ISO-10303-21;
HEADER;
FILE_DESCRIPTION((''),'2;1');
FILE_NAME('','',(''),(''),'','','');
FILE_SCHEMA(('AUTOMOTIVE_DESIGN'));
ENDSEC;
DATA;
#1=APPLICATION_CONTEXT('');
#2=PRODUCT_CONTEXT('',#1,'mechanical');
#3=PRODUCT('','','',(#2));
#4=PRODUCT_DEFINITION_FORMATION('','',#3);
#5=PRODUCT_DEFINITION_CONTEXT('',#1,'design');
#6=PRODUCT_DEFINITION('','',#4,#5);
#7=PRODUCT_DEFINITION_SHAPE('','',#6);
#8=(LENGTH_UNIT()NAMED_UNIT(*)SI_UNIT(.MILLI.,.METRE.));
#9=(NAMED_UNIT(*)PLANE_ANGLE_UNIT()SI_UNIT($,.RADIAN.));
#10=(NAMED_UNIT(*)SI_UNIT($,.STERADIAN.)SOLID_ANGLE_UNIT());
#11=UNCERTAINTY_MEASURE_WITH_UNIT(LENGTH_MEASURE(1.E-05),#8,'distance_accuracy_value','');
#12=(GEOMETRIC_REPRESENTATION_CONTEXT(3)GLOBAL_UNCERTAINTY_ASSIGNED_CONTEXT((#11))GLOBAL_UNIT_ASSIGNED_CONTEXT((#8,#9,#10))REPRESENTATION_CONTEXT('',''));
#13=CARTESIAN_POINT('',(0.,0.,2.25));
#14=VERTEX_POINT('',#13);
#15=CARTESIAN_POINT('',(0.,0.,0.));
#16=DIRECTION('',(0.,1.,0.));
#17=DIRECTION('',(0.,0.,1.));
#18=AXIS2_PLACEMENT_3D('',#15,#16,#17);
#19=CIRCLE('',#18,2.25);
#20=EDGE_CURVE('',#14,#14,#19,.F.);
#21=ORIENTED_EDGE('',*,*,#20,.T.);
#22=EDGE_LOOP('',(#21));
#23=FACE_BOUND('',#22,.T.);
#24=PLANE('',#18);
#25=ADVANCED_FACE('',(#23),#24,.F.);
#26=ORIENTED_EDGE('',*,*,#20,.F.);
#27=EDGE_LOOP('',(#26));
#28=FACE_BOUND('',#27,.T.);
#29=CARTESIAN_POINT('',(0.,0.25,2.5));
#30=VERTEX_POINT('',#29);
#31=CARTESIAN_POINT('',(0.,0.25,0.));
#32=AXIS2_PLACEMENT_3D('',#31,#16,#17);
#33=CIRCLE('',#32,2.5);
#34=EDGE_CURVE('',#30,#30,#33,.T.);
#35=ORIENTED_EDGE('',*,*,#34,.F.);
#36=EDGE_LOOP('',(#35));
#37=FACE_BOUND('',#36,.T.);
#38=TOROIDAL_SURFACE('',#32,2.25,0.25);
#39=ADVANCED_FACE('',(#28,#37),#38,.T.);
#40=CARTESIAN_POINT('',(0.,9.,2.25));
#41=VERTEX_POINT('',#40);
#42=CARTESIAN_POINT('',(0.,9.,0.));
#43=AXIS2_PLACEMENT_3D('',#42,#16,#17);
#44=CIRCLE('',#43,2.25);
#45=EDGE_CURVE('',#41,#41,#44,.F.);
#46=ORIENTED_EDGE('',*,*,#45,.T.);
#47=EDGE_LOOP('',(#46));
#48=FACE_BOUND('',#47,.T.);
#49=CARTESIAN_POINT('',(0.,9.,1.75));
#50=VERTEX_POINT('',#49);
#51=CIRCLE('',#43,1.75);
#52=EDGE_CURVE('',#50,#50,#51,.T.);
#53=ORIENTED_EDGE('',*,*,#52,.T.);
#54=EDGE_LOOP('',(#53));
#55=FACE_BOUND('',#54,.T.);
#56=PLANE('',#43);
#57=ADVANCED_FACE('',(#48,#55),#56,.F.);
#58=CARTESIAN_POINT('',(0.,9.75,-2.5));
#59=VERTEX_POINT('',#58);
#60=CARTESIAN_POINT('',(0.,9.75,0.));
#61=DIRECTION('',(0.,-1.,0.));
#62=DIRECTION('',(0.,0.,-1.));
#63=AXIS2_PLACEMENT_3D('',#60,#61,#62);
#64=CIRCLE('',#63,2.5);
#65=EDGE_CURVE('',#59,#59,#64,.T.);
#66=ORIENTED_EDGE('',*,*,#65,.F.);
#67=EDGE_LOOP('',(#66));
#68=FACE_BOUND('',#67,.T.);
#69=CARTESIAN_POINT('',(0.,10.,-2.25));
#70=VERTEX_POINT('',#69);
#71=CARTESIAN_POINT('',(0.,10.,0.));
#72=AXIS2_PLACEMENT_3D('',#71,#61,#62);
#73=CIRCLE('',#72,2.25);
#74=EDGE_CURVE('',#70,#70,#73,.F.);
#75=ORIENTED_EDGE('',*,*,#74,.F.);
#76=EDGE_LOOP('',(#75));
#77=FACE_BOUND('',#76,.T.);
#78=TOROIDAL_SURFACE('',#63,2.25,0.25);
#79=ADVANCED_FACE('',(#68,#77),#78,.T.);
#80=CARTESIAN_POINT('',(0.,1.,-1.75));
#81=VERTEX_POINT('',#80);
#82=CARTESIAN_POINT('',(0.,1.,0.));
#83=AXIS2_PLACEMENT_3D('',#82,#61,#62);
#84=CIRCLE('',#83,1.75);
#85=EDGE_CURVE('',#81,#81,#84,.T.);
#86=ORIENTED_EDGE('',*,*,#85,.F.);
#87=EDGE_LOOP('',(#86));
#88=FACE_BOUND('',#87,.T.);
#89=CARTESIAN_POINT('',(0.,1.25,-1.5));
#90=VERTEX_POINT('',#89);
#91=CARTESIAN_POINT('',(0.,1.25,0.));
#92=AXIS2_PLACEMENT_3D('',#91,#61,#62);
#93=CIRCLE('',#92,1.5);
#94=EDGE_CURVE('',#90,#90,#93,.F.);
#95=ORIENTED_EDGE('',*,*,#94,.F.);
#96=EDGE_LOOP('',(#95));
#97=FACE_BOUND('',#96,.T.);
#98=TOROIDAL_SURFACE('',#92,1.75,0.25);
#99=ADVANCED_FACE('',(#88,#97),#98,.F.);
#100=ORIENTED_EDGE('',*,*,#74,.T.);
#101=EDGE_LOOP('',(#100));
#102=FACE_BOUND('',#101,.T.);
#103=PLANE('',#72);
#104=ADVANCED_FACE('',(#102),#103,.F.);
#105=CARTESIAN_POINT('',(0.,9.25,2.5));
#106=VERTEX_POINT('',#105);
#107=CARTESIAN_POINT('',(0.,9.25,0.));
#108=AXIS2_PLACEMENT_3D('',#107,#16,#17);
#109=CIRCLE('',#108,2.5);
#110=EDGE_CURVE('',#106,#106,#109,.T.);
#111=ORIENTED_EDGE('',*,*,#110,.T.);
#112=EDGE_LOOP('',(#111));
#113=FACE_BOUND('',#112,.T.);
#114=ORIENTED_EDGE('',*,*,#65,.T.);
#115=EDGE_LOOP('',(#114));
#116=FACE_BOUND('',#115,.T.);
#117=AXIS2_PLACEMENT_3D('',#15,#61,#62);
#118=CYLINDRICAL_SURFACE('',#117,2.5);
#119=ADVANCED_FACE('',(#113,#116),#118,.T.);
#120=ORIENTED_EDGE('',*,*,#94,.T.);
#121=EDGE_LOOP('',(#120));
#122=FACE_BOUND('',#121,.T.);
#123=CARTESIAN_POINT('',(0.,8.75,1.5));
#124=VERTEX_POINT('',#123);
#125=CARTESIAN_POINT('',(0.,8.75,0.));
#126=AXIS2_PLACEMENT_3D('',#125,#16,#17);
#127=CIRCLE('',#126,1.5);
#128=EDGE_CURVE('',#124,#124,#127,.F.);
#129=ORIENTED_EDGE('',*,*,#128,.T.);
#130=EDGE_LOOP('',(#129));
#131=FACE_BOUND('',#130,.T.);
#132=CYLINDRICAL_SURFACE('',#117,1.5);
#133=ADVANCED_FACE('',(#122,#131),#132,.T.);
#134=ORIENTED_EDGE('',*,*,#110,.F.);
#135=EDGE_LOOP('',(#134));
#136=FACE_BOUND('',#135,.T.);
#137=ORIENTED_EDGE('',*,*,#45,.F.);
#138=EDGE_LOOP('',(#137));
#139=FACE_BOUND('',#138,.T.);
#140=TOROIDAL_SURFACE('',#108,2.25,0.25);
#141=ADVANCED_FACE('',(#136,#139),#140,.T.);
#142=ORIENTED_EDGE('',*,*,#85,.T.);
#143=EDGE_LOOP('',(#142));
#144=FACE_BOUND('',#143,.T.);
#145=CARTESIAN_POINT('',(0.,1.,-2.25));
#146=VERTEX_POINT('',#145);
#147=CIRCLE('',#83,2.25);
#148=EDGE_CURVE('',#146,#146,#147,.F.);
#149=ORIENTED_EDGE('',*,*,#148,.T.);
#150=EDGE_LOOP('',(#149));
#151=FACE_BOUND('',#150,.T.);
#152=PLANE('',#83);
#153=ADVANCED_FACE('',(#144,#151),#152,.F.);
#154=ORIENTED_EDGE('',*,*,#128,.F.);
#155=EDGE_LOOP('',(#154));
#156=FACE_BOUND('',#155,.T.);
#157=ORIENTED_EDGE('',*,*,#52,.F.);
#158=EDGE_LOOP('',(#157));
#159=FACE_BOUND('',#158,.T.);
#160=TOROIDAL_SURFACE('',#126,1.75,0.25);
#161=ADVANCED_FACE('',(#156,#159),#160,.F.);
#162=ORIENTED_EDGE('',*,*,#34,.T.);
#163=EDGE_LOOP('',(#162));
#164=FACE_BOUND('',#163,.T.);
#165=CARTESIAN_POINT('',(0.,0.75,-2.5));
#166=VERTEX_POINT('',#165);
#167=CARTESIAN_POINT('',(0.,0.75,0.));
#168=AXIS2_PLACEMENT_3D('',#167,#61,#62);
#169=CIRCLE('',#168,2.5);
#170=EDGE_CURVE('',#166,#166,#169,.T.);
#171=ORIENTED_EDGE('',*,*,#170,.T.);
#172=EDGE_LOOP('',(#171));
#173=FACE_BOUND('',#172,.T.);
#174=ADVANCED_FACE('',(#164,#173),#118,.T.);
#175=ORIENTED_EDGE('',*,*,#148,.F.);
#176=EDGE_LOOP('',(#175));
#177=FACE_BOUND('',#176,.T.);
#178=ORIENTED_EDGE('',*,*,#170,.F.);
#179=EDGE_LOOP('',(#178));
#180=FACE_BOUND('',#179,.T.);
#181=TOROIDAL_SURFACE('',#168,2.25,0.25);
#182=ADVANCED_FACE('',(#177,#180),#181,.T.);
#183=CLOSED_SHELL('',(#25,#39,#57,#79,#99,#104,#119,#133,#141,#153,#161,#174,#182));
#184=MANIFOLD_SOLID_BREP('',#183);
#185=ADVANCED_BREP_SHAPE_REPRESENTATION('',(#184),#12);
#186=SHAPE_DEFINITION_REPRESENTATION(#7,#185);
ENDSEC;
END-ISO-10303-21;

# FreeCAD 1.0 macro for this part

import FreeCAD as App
import Part
import Sketcher

V = App.Vector


def edges_at(feature, points):
    """Names of the edges that pass closest to the given points."""
    edges = feature.Shape.Edges
    near = lambda p: min(range(len(edges)), key=lambda i: edges[i].distToShape(Part.Vertex(*p))[0])
    return sorted({f"Edge{near(p) + 1}" for p in points})

doc = App.newDocument("Part")
params = doc.addObject("Spreadsheet::Sheet", "Params")
for row, (alias, value) in enumerate([
    ("sketch1_width", "1 mm"),
    ("sketch1_height", "10 mm"),
    ("sketch1_width2", "2.5 mm"),
    ("revolution_angle", "360 deg"),
    ("fillet_radius", "0.25 mm"),
], start=1):
    params.set(f"A{row}", alias)
    params.set(f"B{row}", "=" + value)
    params.setAlias(f"B{row}", alias)

body = doc.addObject("PartDesign::Body", "Body")

sketch1 = body.newObject("Sketcher::SketchObject", "Sketch")
sketch1.AttachmentSupport = (doc.getObject("XY_Plane"), [""])
sketch1.MapMode = "FlatFace"
sketch1.addGeometry([
    Part.LineSegment(V(-2.5, 1, 0), V(-2.5, 0, 0)),
    Part.LineSegment(V(-2.5, 0, 0), V(0, 0, 0)),
    Part.LineSegment(V(0, 0, 0), V(0, 10, 0)),
    Part.LineSegment(V(0, 10, 0), V(-2.5, 10, 0)),
    Part.LineSegment(V(-2.5, 10, 0), V(-2.5, 9, 0)),
    Part.LineSegment(V(-2.5, 9, 0), V(-1.5, 9, 0)),
    Part.LineSegment(V(-1.5, 9, 0), V(-1.5, 1, 0)),
    Part.LineSegment(V(-1.5, 1, 0), V(-2.5, 1, 0)),
], False)
sketch1.addConstraint([
    Sketcher.Constraint("Coincident", 0, 2, 1, 1),
    Sketcher.Constraint("Coincident", 1, 2, 2, 1),
    Sketcher.Constraint("Coincident", 2, 2, 3, 1),
    Sketcher.Constraint("Coincident", 3, 2, 4, 1),
    Sketcher.Constraint("Coincident", 4, 2, 5, 1),
    Sketcher.Constraint("Coincident", 5, 2, 6, 1),
    Sketcher.Constraint("Coincident", 6, 2, 7, 1),
    Sketcher.Constraint("Coincident", 7, 2, 0, 1),
    Sketcher.Constraint("Vertical", 0),
    Sketcher.Constraint("Horizontal", 1),
    Sketcher.Constraint("Vertical", 2),
    Sketcher.Constraint("Horizontal", 3),
    Sketcher.Constraint("Vertical", 4),
    Sketcher.Constraint("Horizontal", 5),
    Sketcher.Constraint("Vertical", 6),
    Sketcher.Constraint("Horizontal", 7),
    Sketcher.Constraint("Coincident", 1, 2, -1, 1),
    Sketcher.Constraint("Vertical", 0, 2, 3, 2),
    Sketcher.Constraint("Equal", 7, 0),
    Sketcher.Constraint("Equal", 0, 4),
    Sketcher.Constraint("DistanceX", 5, 1, 5, 2, 1.0),
    Sketcher.Constraint("DistanceY", 2, 1, 2, 2, 10.0),
    Sketcher.Constraint("DistanceX", 1, 1, 1, 2, 2.5),
])
sketch1.setExpression("Constraints[20]", "Params.sketch1_width")
sketch1.setExpression("Constraints[21]", "Params.sketch1_height")
sketch1.setExpression("Constraints[22]", "Params.sketch1_width2")
revolution = body.newObject("PartDesign::Revolution", "Revolution")
revolution.Profile = sketch1
revolution.ReferenceAxis = (sketch1, ["V_Axis"])
revolution.setExpression("Angle", "Params.revolution_angle")
doc.recompute()

fillet = body.newObject("PartDesign::Fillet", "Fillet")
fillet.Base = (revolution, edges_at(revolution, [
    (0, 0, 2.5),
    (0, 1, 2.5),
    (0, 1, 1.5),
    (0, 9, 1.5),
    (0, 9, 2.5),
    (0, 10, 2.5),
]))
fillet.setExpression("Radius", "Params.fillet_radius")

doc.recompute()
